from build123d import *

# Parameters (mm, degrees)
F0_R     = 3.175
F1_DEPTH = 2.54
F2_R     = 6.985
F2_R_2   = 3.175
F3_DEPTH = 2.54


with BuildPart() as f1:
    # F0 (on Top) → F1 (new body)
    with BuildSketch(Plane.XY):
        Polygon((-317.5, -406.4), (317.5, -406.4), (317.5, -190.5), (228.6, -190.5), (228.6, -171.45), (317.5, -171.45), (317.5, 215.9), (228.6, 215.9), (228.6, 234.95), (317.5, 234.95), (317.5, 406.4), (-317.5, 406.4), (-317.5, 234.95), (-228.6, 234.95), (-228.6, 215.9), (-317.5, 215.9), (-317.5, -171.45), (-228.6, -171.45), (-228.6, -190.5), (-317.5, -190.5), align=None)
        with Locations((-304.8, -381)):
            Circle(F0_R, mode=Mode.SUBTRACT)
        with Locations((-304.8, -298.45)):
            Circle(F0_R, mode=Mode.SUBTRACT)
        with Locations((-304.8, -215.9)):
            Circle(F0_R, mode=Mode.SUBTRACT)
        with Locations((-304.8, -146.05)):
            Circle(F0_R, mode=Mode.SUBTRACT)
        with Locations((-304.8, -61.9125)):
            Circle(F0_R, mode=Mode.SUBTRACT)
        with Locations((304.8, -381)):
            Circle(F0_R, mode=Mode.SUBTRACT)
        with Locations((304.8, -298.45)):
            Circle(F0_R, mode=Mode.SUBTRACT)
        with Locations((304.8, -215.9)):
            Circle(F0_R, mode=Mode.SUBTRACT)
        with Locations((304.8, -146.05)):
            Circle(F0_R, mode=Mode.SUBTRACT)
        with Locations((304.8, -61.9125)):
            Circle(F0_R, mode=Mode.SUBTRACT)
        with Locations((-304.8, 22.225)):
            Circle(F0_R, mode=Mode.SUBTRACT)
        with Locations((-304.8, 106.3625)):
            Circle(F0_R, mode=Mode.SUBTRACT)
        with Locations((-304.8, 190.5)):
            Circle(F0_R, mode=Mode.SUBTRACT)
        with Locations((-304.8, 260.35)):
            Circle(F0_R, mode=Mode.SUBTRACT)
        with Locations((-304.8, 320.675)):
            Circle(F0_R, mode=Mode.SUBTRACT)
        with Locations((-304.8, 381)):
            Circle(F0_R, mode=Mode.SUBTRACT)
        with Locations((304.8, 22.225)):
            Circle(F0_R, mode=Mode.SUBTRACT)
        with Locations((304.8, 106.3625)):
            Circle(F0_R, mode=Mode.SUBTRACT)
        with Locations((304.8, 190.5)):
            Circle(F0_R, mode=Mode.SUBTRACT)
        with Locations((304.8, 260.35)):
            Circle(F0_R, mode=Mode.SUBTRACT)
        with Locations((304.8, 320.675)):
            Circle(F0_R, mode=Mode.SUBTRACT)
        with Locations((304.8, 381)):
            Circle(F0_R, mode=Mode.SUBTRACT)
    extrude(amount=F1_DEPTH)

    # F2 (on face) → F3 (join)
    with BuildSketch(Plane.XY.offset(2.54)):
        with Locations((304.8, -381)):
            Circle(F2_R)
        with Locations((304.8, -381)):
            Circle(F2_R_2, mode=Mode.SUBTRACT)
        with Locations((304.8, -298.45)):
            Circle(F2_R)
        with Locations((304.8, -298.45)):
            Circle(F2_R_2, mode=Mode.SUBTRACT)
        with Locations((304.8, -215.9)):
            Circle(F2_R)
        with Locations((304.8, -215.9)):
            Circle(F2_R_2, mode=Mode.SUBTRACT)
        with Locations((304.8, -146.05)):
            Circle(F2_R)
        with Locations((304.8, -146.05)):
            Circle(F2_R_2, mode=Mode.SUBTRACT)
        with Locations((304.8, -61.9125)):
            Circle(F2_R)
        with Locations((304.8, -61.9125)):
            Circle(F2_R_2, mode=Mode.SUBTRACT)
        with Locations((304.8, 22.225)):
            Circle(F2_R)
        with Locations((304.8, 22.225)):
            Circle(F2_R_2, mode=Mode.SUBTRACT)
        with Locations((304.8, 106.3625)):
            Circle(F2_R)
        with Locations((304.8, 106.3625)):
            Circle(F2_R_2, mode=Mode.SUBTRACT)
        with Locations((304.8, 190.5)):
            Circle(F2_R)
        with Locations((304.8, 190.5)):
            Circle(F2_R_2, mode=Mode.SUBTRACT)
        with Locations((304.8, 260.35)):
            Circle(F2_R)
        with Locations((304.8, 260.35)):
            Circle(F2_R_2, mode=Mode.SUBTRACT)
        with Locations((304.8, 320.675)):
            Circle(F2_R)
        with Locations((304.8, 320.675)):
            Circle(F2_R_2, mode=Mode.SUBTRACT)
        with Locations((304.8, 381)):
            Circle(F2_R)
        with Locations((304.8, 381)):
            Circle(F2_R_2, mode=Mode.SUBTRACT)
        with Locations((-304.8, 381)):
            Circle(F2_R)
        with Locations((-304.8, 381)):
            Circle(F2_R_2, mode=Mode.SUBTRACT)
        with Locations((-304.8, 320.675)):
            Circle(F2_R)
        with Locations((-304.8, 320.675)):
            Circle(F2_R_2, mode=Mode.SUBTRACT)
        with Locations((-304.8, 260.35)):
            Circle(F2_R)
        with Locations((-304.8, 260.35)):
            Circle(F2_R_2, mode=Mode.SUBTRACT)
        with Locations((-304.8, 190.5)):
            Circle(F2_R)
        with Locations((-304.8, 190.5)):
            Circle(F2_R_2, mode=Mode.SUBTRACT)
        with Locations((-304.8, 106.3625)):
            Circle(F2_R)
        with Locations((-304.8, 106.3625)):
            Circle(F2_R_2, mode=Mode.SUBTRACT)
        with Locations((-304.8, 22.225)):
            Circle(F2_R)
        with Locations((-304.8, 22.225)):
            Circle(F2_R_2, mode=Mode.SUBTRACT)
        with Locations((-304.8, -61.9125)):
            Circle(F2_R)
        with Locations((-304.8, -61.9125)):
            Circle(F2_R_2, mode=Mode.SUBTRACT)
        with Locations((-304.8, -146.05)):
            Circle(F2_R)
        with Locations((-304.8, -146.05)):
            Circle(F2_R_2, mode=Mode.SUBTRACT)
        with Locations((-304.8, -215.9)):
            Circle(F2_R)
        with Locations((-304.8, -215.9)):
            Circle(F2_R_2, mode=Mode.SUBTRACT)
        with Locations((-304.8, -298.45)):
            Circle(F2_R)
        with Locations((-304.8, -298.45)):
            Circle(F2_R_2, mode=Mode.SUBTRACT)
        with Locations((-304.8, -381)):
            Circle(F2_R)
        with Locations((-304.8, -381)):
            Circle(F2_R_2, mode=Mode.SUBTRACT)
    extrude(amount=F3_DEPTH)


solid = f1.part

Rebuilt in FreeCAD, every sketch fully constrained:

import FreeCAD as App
import Part
import Sketcher
Q = App.Units.Quantity

doc = App.newDocument("Part")
params = doc.addObject("Spreadsheet::Sheet", "Params")
for row, (alias, value) in enumerate([
    ("sketch1_diameter", "0.25 in"),
    ("sketch1_width", "25 in"),
    ("sketch1_width2", "3.5 in"),
    ("sketch1_height", "8.5 in"),
    ("sketch1_height2", "0.75 in"),
    ("pad1_length", "0.1 in"),
    ("sketch2_diameter", "0.55 in"),
    ("sketch2_diameter2", "0.25 in"),
    ("pad2_length", "0.1 in"),
], start=1):
    params.set(f"A{row}", alias)
    params.set(f"B{row}", "=" + value)
    params.setAlias(f"B{row}", alias)

body = doc.addObject("PartDesign::Body", "Body")

# Sketch on XY plane
sketch1 = body.newObject("Sketcher::SketchObject", "Sketch")
sketch1.AttachmentSupport = (doc.getObject("XY_Plane"), [""])
sketch1.MapMode = "FlatFace"
sketch1.addGeometry([
    Part.LineSegment(App.Vector(-317.5, -406.4, 0), App.Vector(317.5, -406.4, 0)),  # 0
    Part.LineSegment(App.Vector(317.5, -406.4, 0), App.Vector(317.5, -190.5, 0)),  # 1
    Part.LineSegment(App.Vector(317.5, -190.5, 0), App.Vector(228.6, -190.5, 0)),  # 2
    Part.LineSegment(App.Vector(228.6, -190.5, 0), App.Vector(228.6, -171.45, 0)),  # 3
    Part.LineSegment(App.Vector(228.6, -171.45, 0), App.Vector(317.5, -171.45, 0)),  # 4
    Part.LineSegment(App.Vector(317.5, -171.45, 0), App.Vector(317.5, 215.9, 0)),  # 5
    Part.LineSegment(App.Vector(317.5, 215.9, 0), App.Vector(228.6, 215.9, 0)),  # 6
    Part.LineSegment(App.Vector(228.6, 215.9, 0), App.Vector(228.6, 234.95, 0)),  # 7
    Part.LineSegment(App.Vector(228.6, 234.95, 0), App.Vector(317.5, 234.95, 0)),  # 8
    Part.LineSegment(App.Vector(317.5, 234.95, 0), App.Vector(317.5, 406.4, 0)),  # 9
    Part.LineSegment(App.Vector(317.5, 406.4, 0), App.Vector(-317.5, 406.4, 0)),  # 10
    Part.LineSegment(App.Vector(-317.5, 406.4, 0), App.Vector(-317.5, 234.95, 0)),  # 11
    Part.LineSegment(App.Vector(-317.5, 234.95, 0), App.Vector(-228.6, 234.95, 0)),  # 12
    Part.LineSegment(App.Vector(-228.6, 234.95, 0), App.Vector(-228.6, 215.9, 0)),  # 13
    Part.LineSegment(App.Vector(-228.6, 215.9, 0), App.Vector(-317.5, 215.9, 0)),  # 14
    Part.LineSegment(App.Vector(-317.5, 215.9, 0), App.Vector(-317.5, -171.45, 0)),  # 15
    Part.LineSegment(App.Vector(-317.5, -171.45, 0), App.Vector(-228.6, -171.45, 0)),  # 16
    Part.LineSegment(App.Vector(-228.6, -171.45, 0), App.Vector(-228.6, -190.5, 0)),  # 17
    Part.LineSegment(App.Vector(-228.6, -190.5, 0), App.Vector(-317.5, -190.5, 0)),  # 18
    Part.LineSegment(App.Vector(-317.5, -190.5, 0), App.Vector(-317.5, -406.4, 0)),  # 19
    Part.Circle(App.Vector(-304.8, -381, 0), App.Vector(0, 0, 1), 3.175),  # 20
    Part.Circle(App.Vector(-304.8, -298.45, 0), App.Vector(0, 0, 1), 3.175),  # 21
    Part.Circle(App.Vector(-304.8, -215.9, 0), App.Vector(0, 0, 1), 3.175),  # 22
    Part.Circle(App.Vector(-304.8, -146.05, 0), App.Vector(0, 0, 1), 3.175),  # 23
    Part.Circle(App.Vector(-304.8, -61.9125, 0), App.Vector(0, 0, 1), 3.175),  # 24
    Part.Circle(App.Vector(304.8, -381, 0), App.Vector(0, 0, 1), 3.175),  # 25
    Part.Circle(App.Vector(304.8, -298.45, 0), App.Vector(0, 0, 1), 3.175),  # 26
    Part.Circle(App.Vector(304.8, -215.9, 0), App.Vector(0, 0, 1), 3.175),  # 27
    Part.Circle(App.Vector(304.8, -146.05, 0), App.Vector(0, 0, 1), 3.175),  # 28
    Part.Circle(App.Vector(304.8, -61.9125, 0), App.Vector(0, 0, 1), 3.175),  # 29
    Part.Circle(App.Vector(-304.8, 22.225, 0), App.Vector(0, 0, 1), 3.175),  # 30
    Part.Circle(App.Vector(-304.8, 106.3625, 0), App.Vector(0, 0, 1), 3.175),  # 31
    Part.Circle(App.Vector(-304.8, 190.5, 0), App.Vector(0, 0, 1), 3.175),  # 32
    Part.Circle(App.Vector(-304.8, 260.35, 0), App.Vector(0, 0, 1), 3.175),  # 33
    Part.Circle(App.Vector(-304.8, 320.675, 0), App.Vector(0, 0, 1), 3.175),  # 34
    Part.Circle(App.Vector(-304.8, 381, 0), App.Vector(0, 0, 1), 3.175),  # 35
    Part.Circle(App.Vector(304.8, 22.225, 0), App.Vector(0, 0, 1), 3.175),  # 36
    Part.Circle(App.Vector(304.8, 106.3625, 0), App.Vector(0, 0, 1), 3.175),  # 37
    Part.Circle(App.Vector(304.8, 190.5, 0), App.Vector(0, 0, 1), 3.175),  # 38
    Part.Circle(App.Vector(304.8, 260.35, 0), App.Vector(0, 0, 1), 3.175),  # 39
    Part.Circle(App.Vector(304.8, 320.675, 0), App.Vector(0, 0, 1), 3.175),  # 40
    Part.Circle(App.Vector(304.8, 381, 0), App.Vector(0, 0, 1), 3.175),  # 41
], False)
sketch1.addConstraint([
    Sketcher.Constraint("Coincident", 0, 2, 1, 1),
    Sketcher.Constraint("Coincident", 1, 2, 2, 1),
    Sketcher.Constraint("Coincident", 2, 2, 3, 1),
    Sketcher.Constraint("Coincident", 3, 2, 4, 1),
    Sketcher.Constraint("Coincident", 4, 2, 5, 1),
    Sketcher.Constraint("Coincident", 5, 2, 6, 1),
    Sketcher.Constraint("Coincident", 6, 2, 7, 1),
    Sketcher.Constraint("Coincident", 7, 2, 8, 1),
    Sketcher.Constraint("Coincident", 8, 2, 9, 1),
    Sketcher.Constraint("Coincident", 9, 2, 10, 1),
    Sketcher.Constraint("Coincident", 10, 2, 11, 1),
    Sketcher.Constraint("Coincident", 11, 2, 12, 1),
    Sketcher.Constraint("Coincident", 12, 2, 13, 1),
    Sketcher.Constraint("Coincident", 13, 2, 14, 1),
    Sketcher.Constraint("Coincident", 14, 2, 15, 1),
    Sketcher.Constraint("Coincident", 15, 2, 16, 1),
    Sketcher.Constraint("Coincident", 16, 2, 17, 1),
    Sketcher.Constraint("Coincident", 17, 2, 18, 1),
    Sketcher.Constraint("Coincident", 18, 2, 19, 1),
    Sketcher.Constraint("Coincident", 19, 2, 0, 1),
    Sketcher.Constraint("Horizontal", 0),
    Sketcher.Constraint("Vertical", 1),
    Sketcher.Constraint("Horizontal", 2),
    Sketcher.Constraint("Vertical", 3),
    Sketcher.Constraint("Horizontal", 4),
    Sketcher.Constraint("Vertical", 5),
    Sketcher.Constraint("Horizontal", 6),
    Sketcher.Constraint("Vertical", 7),
    Sketcher.Constraint("Horizontal", 8),
    Sketcher.Constraint("Vertical", 9),
    Sketcher.Constraint("Horizontal", 10),
    Sketcher.Constraint("Vertical", 11),
    Sketcher.Constraint("Horizontal", 12),
    Sketcher.Constraint("Vertical", 13),
    Sketcher.Constraint("Horizontal", 14),
    Sketcher.Constraint("Vertical", 15),
    Sketcher.Constraint("Horizontal", 16),
    Sketcher.Constraint("Vertical", 17),
    Sketcher.Constraint("Horizontal", 18),
    Sketcher.Constraint("Vertical", 19),
    Sketcher.Constraint("Equal", 20, 21),
    Sketcher.Constraint("Equal", 21, 22),
    Sketcher.Constraint("Equal", 22, 23),
    Sketcher.Constraint("Equal", 23, 24),
    Sketcher.Constraint("Equal", 24, 25),
    Sketcher.Constraint("Equal", 25, 26),
    Sketcher.Constraint("Equal", 26, 27),
    Sketcher.Constraint("Equal", 27, 28),
    Sketcher.Constraint("Equal", 28, 29),
    Sketcher.Constraint("Equal", 29, 30),
    Sketcher.Constraint("Equal", 30, 31),
    Sketcher.Constraint("Equal", 31, 32),
    Sketcher.Constraint("Equal", 32, 33),
    Sketcher.Constraint("Equal", 33, 34),
    Sketcher.Constraint("Equal", 34, 35),
    Sketcher.Constraint("Equal", 35, 36),
    Sketcher.Constraint("Equal", 36, 37),
    Sketcher.Constraint("Equal", 37, 38),
    Sketcher.Constraint("Equal", 38, 39),
    Sketcher.Constraint("Equal", 39, 40),
    Sketcher.Constraint("Equal", 40, 41),
    Sketcher.Constraint("Symmetric", 25, 3, 35, 3, -1, 1),
    Sketcher.Constraint("Symmetric", 20, 3, 41, 3, -1, 1),
    Sketcher.Constraint("Symmetric", 0, 2, 10, 2, -1, 1),
    Sketcher.Constraint("Symmetric", 20, 3, 25, 3, -2),
    Sketcher.Constraint("Symmetric", 21, 3, 26, 3, -2),
    Sketcher.Constraint("Symmetric", 22, 3, 27, 3, -2),
    Sketcher.Constraint("Symmetric", 23, 3, 28, 3, -2),
    Sketcher.Constraint("Symmetric", 24, 3, 29, 3, -2),
    Sketcher.Constraint("Symmetric", 30, 3, 36, 3, -2),
    Sketcher.Constraint("Symmetric", 31, 3, 37, 3, -2),
    Sketcher.Constraint("Symmetric", 32, 3, 38, 3, -2),
    Sketcher.Constraint("Symmetric", 33, 3, 39, 3, -2),
    Sketcher.Constraint("Symmetric", 34, 3, 40, 3, -2),
    Sketcher.Constraint("Symmetric", 8, 2, 11, 2, -2),
    Sketcher.Constraint("Symmetric", 6, 2, 13, 2, -2),
    Sketcher.Constraint("Symmetric", 4, 2, 15, 2, -2),
    Sketcher.Constraint("Symmetric", 2, 2, 17, 2, -2),
    Sketcher.Constraint("Vertical", 20, 3, 21, 3),
    Sketcher.Constraint("Vertical", 21, 3, 22, 3),
    Sketcher.Constraint("Vertical", 22, 3, 23, 3),
    Sketcher.Constraint("Vertical", 23, 3, 24, 3),
    Sketcher.Constraint("Vertical", 24, 3, 30, 3),
    Sketcher.Constraint("Vertical", 30, 3, 31, 3),
    Sketcher.Constraint("Vertical", 31, 3, 32, 3),
    Sketcher.Constraint("Vertical", 32, 3, 33, 3),
    Sketcher.Constraint("Vertical", 33, 3, 34, 3),
    Sketcher.Constraint("Vertical", 1, 2, 4, 2),
    Sketcher.Constraint("Vertical", 3, 2, 6, 2),
    Sketcher.Constraint("Vertical", 15, 2, 18, 2),
    Sketcher.Constraint("Equal", 3, 7),
    Sketcher.Constraint("Diameter", 20, Q("0.25 in")),
    Sketcher.Constraint("DistanceX", 0, 1, 0, 2, Q("25 in")),
    Sketcher.Constraint("DistanceX", 2, 2, 2, 1, Q("3.5 in")),
    Sketcher.Constraint("DistanceY", 1, 1, 1, 2, Q("8.5 in")),
    Sketcher.Constraint("DistanceX", 20, 3, -1, 1, Q("12 in")),
    Sketcher.Constraint("DistanceY", 20, 3, -1, 1, Q("15 in")),
    Sketcher.Constraint("DistanceY", 0, 2, -1, 1, Q("16 in")),
    Sketcher.Constraint("DistanceY", 21, 3, 23, 3, Q("6 in")),
    Sketcher.Constraint("DistanceY", 22, 3, 32, 3, Q("16 in")),
    Sketcher.Constraint("DistanceY", 23, 3, 33, 3, Q("16 in")),
    Sketcher.Constraint("DistanceY", 27, 3, 1, 2, Q("1 in")),
    Sketcher.Constraint("DistanceY", 3, 2, 28, 3, Q("1 in")),
    Sketcher.Constraint("DistanceY", 38, 3, 5, 2, Q("1 in")),
    Sketcher.Constraint("DistanceY", 3, 1, 3, 2, Q("0.75 in")),
    Sketcher.Constraint("DistanceY", 30, 3, 34, 3, Q("11.75 in")),
    Sketcher.Constraint("DistanceY", 24, 3, -1, 1, Q("2.4375 in")),
    Sketcher.Constraint("DistanceY", -1, 1, 30, 3, Q("0.875 in")),
    Sketcher.Constraint("DistanceY", -1, 1, 31, 3, Q("4.1875 in")),
])
sketch1.setExpression("Constraints[91]", "Params.sketch1_diameter")
sketch1.setExpression("Constraints[92]", "Params.sketch1_width")
sketch1.setExpression("Constraints[93]", "Params.sketch1_width2")
sketch1.setExpression("Constraints[94]", "Params.sketch1_height")
sketch1.setExpression("Constraints[104]", "Params.sketch1_height2")
pad1 = body.newObject("PartDesign::Pad", "Pad")
pad1.Profile = sketch1
pad1.setExpression("Length", "Params.pad1_length")

# Sketch on XY plane
sketch2 = body.newObject("Sketcher::SketchObject", "Sketch001")
sketch2.AttachmentSupport = (doc.getObject("XY_Plane"), [""])
sketch2.MapMode = "FlatFace"
sketch2.AttachmentOffset = App.Placement(App.Vector(0, 0, 0.1 * 25.4), App.Rotation())
sketch2.addGeometry([
    Part.Circle(App.Vector(304.8, -381, 0), App.Vector(0, 0, 1), 6.985),  # 0
    Part.Circle(App.Vector(304.8, -381, 0), App.Vector(0, 0, 1), 3.175),  # 1
    Part.Circle(App.Vector(304.8, -298.45, 0), App.Vector(0, 0, 1), 6.985),  # 2
    Part.Circle(App.Vector(304.8, -298.45, 0), App.Vector(0, 0, 1), 3.175),  # 3
    Part.Circle(App.Vector(304.8, -215.9, 0), App.Vector(0, 0, 1), 6.985),  # 4
    Part.Circle(App.Vector(304.8, -215.9, 0), App.Vector(0, 0, 1), 3.175),  # 5
    Part.Circle(App.Vector(304.8, -146.05, 0), App.Vector(0, 0, 1), 6.985),  # 6
    Part.Circle(App.Vector(304.8, -146.05, 0), App.Vector(0, 0, 1), 3.175),  # 7
    Part.Circle(App.Vector(304.8, -61.9125, 0), App.Vector(0, 0, 1), 6.985),  # 8
    Part.Circle(App.Vector(304.8, -61.9125, 0), App.Vector(0, 0, 1), 3.175),  # 9
    Part.Circle(App.Vector(304.8, 22.225, 0), App.Vector(0, 0, 1), 6.985),  # 10
    Part.Circle(App.Vector(304.8, 22.225, 0), App.Vector(0, 0, 1), 3.175),  # 11
    Part.Circle(App.Vector(304.8, 106.3625, 0), App.Vector(0, 0, 1), 6.985),  # 12
    Part.Circle(App.Vector(304.8, 106.3625, 0), App.Vector(0, 0, 1), 3.175),  # 13
    Part.Circle(App.Vector(304.8, 190.5, 0), App.Vector(0, 0, 1), 6.985),  # 14
    Part.Circle(App.Vector(304.8, 190.5, 0), App.Vector(0, 0, 1), 3.175),  # 15
    Part.Circle(App.Vector(304.8, 260.35, 0), App.Vector(0, 0, 1), 6.985),  # 16
    Part.Circle(App.Vector(304.8, 260.35, 0), App.Vector(0, 0, 1), 3.175),  # 17
    Part.Circle(App.Vector(304.8, 320.675, 0), App.Vector(0, 0, 1), 6.985),  # 18
    Part.Circle(App.Vector(304.8, 320.675, 0), App.Vector(0, 0, 1), 3.175),  # 19
    Part.Circle(App.Vector(304.8, 381, 0), App.Vector(0, 0, 1), 6.985),  # 20
    Part.Circle(App.Vector(304.8, 381, 0), App.Vector(0, 0, 1), 3.175),  # 21
    Part.Circle(App.Vector(-304.8, 381, 0), App.Vector(0, 0, 1), 6.985),  # 22
    Part.Circle(App.Vector(-304.8, 381, 0), App.Vector(0, 0, 1), 3.175),  # 23
    Part.Circle(App.Vector(-304.8, 320.675, 0), App.Vector(0, 0, 1), 6.985),  # 24
    Part.Circle(App.Vector(-304.8, 320.675, 0), App.Vector(0, 0, 1), 3.175),  # 25
    Part.Circle(App.Vector(-304.8, 260.35, 0), App.Vector(0, 0, 1), 6.985),  # 26
    Part.Circle(App.Vector(-304.8, 260.35, 0), App.Vector(0, 0, 1), 3.175),  # 27
    Part.Circle(App.Vector(-304.8, 190.5, 0), App.Vector(0, 0, 1), 6.985),  # 28
    Part.Circle(App.Vector(-304.8, 190.5, 0), App.Vector(0, 0, 1), 3.175),  # 29
    Part.Circle(App.Vector(-304.8, 106.3625, 0), App.Vector(0, 0, 1), 6.985),  # 30
    Part.Circle(App.Vector(-304.8, 106.3625, 0), App.Vector(0, 0, 1), 3.175),  # 31
    Part.Circle(App.Vector(-304.8, 22.225, 0), App.Vector(0, 0, 1), 6.985),  # 32
    Part.Circle(App.Vector(-304.8, 22.225, 0), App.Vector(0, 0, 1), 3.175),  # 33
    Part.Circle(App.Vector(-304.8, -61.9125, 0), App.Vector(0, 0, 1), 6.985),  # 34
    Part.Circle(App.Vector(-304.8, -61.9125, 0), App.Vector(0, 0, 1), 3.175),  # 35
    Part.Circle(App.Vector(-304.8, -146.05, 0), App.Vector(0, 0, 1), 6.985),  # 36
    Part.Circle(App.Vector(-304.8, -146.05, 0), App.Vector(0, 0, 1), 3.175),  # 37
    Part.Circle(App.Vector(-304.8, -215.9, 0), App.Vector(0, 0, 1), 6.985),  # 38
    Part.Circle(App.Vector(-304.8, -215.9, 0), App.Vector(0, 0, 1), 3.175),  # 39
    Part.Circle(App.Vector(-304.8, -298.45, 0), App.Vector(0, 0, 1), 6.985),  # 40
    Part.Circle(App.Vector(-304.8, -298.45, 0), App.Vector(0, 0, 1), 3.175),  # 41
    Part.Circle(App.Vector(-304.8, -381, 0), App.Vector(0, 0, 1), 6.985),  # 42
    Part.Circle(App.Vector(-304.8, -381, 0), App.Vector(0, 0, 1), 3.175),  # 43
], False)
sketch2.addConstraint([
    Sketcher.Constraint("Coincident", 1, 3, 0, 3),
    Sketcher.Constraint("Coincident", 3, 3, 2, 3),
    Sketcher.Constraint("Coincident", 5, 3, 4, 3),
    Sketcher.Constraint("Coincident", 7, 3, 6, 3),
    Sketcher.Constraint("Coincident", 9, 3, 8, 3),
    Sketcher.Constraint("Coincident", 11, 3, 10, 3),
    Sketcher.Constraint("Coincident", 13, 3, 12, 3),
    Sketcher.Constraint("Coincident", 15, 3, 14, 3),
    Sketcher.Constraint("Coincident", 17, 3, 16, 3),
    Sketcher.Constraint("Coincident", 19, 3, 18, 3),
    Sketcher.Constraint("Coincident", 21, 3, 20, 3),
    Sketcher.Constraint("Coincident", 23, 3, 22, 3),
    Sketcher.Constraint("Coincident", 25, 3, 24, 3),
    Sketcher.Constraint("Coincident", 27, 3, 26, 3),
    Sketcher.Constraint("Coincident", 29, 3, 28, 3),
    Sketcher.Constraint("Coincident", 31, 3, 30, 3),
    Sketcher.Constraint("Coincident", 33, 3, 32, 3),
    Sketcher.Constraint("Coincident", 35, 3, 34, 3),
    Sketcher.Constraint("Coincident", 37, 3, 36, 3),
    Sketcher.Constraint("Coincident", 39, 3, 38, 3),
    Sketcher.Constraint("Coincident", 41, 3, 40, 3),
    Sketcher.Constraint("Coincident", 43, 3, 42, 3),
    Sketcher.Constraint("Equal", 0, 2),
    Sketcher.Constraint("Equal", 1, 3),
    Sketcher.Constraint("Equal", 2, 4),
    Sketcher.Constraint("Equal", 3, 5),
    Sketcher.Constraint("Equal", 4, 6),
    Sketcher.Constraint("Equal", 5, 7),
    Sketcher.Constraint("Equal", 6, 8),
    Sketcher.Constraint("Equal", 7, 9),
    Sketcher.Constraint("Equal", 8, 10),
    Sketcher.Constraint("Equal", 9, 11),
    Sketcher.Constraint("Equal", 10, 12),
    Sketcher.Constraint("Equal", 11, 13),
    Sketcher.Constraint("Equal", 12, 14),
    Sketcher.Constraint("Equal", 13, 15),
    Sketcher.Constraint("Equal", 14, 16),
    Sketcher.Constraint("Equal", 15, 17),
    Sketcher.Constraint("Equal", 16, 18),
    Sketcher.Constraint("Equal", 17, 19),
    Sketcher.Constraint("Equal", 18, 20),
    Sketcher.Constraint("Equal", 19, 21),
    Sketcher.Constraint("Equal", 20, 22),
    Sketcher.Constraint("Equal", 21, 23),
    Sketcher.Constraint("Equal", 22, 24),
    Sketcher.Constraint("Equal", 23, 25),
    Sketcher.Constraint("Equal", 24, 26),
    Sketcher.Constraint("Equal", 25, 27),
    Sketcher.Constraint("Equal", 26, 28),
    Sketcher.Constraint("Equal", 27, 29),
    Sketcher.Constraint("Equal", 28, 30),
    Sketcher.Constraint("Equal", 29, 31),
    Sketcher.Constraint("Equal", 30, 32),
    Sketcher.Constraint("Equal", 31, 33),
    Sketcher.Constraint("Equal", 32, 34),
    Sketcher.Constraint("Equal", 33, 35),
    Sketcher.Constraint("Equal", 34, 36),
    Sketcher.Constraint("Equal", 35, 37),
    Sketcher.Constraint("Equal", 36, 38),
    Sketcher.Constraint("Equal", 37, 39),
    Sketcher.Constraint("Equal", 38, 40),
    Sketcher.Constraint("Equal", 39, 41),
    Sketcher.Constraint("Equal", 40, 42),
    Sketcher.Constraint("Equal", 41, 43),
    Sketcher.Constraint("Symmetric", 0, 3, 22, 3, -1, 1),
    Sketcher.Constraint("Symmetric", 20, 3, 42, 3, -1, 1),
    Sketcher.Constraint("Symmetric", 20, 3, 22, 3, -2),
    Sketcher.Constraint("Symmetric", 18, 3, 24, 3, -2),
    Sketcher.Constraint("Symmetric", 16, 3, 26, 3, -2),
    Sketcher.Constraint("Symmetric", 14, 3, 28, 3, -2),
    Sketcher.Constraint("Symmetric", 12, 3, 30, 3, -2),
    Sketcher.Constraint("Symmetric", 10, 3, 32, 3, -2),
    Sketcher.Constraint("Symmetric", 8, 3, 34, 3, -2),
    Sketcher.Constraint("Symmetric", 6, 3, 36, 3, -2),
    Sketcher.Constraint("Symmetric", 4, 3, 38, 3, -2),
    Sketcher.Constraint("Symmetric", 2, 3, 40, 3, -2),
    Sketcher.Constraint("Vertical", 1, 3, 2, 3),
    Sketcher.Constraint("Vertical", 3, 3, 4, 3),
    Sketcher.Constraint("Vertical", 5, 3, 6, 3),
    Sketcher.Constraint("Vertical", 7, 3, 8, 3),
    Sketcher.Constraint("Vertical", 9, 3, 10, 3),
    Sketcher.Constraint("Vertical", 11, 3, 12, 3),
    Sketcher.Constraint("Vertical", 13, 3, 14, 3),
    Sketcher.Constraint("Vertical", 15, 3, 16, 3),
    Sketcher.Constraint("Vertical", 17, 3, 18, 3),
    Sketcher.Constraint("Diameter", 0, Q("0.55 in")),
    Sketcher.Constraint("Diameter", 1, Q("0.25 in")),
    Sketcher.Constraint("DistanceX", -1, 1, 0, 3, Q("12 in")),
    Sketcher.Constraint("DistanceY", 0, 3, -1, 1, Q("15 in")),
    Sketcher.Constraint("DistanceY", 2, 3, 6, 3, Q("6 in")),
    Sketcher.Constraint("DistanceY", 4, 3, -1, 1, Q("8.5 in")),
    Sketcher.Constraint("DistanceY", -1, 1, 14, 3, Q("7.5 in")),
    Sketcher.Constraint("DistanceY", 2, 3, -1, 1, Q("11.75 in")),
    Sketcher.Constraint("DistanceY", -1, 1, 16, 3, Q("10.25 in")),
    Sketcher.Constraint("DistanceY", 8, 3, -1, 1, Q("2.4375 in")),
    Sketcher.Constraint("DistanceY", -1, 1, 10, 3, Q("0.875 in")),
    Sketcher.Constraint("DistanceY", -1, 1, 12, 3, Q("4.1875 in")),
    Sketcher.Constraint("DistanceY", -1, 1, 18, 3, Q("12.625 in")),
])
sketch2.setExpression("Constraints[85]", "Params.sketch2_diameter")
sketch2.setExpression("Constraints[86]", "Params.sketch2_diameter2")
pad2 = body.newObject("PartDesign::Pad", "Pad001")
pad2.Profile = sketch2
pad2.setExpression("Length", "Params.pad2_length")

doc.recompute()
